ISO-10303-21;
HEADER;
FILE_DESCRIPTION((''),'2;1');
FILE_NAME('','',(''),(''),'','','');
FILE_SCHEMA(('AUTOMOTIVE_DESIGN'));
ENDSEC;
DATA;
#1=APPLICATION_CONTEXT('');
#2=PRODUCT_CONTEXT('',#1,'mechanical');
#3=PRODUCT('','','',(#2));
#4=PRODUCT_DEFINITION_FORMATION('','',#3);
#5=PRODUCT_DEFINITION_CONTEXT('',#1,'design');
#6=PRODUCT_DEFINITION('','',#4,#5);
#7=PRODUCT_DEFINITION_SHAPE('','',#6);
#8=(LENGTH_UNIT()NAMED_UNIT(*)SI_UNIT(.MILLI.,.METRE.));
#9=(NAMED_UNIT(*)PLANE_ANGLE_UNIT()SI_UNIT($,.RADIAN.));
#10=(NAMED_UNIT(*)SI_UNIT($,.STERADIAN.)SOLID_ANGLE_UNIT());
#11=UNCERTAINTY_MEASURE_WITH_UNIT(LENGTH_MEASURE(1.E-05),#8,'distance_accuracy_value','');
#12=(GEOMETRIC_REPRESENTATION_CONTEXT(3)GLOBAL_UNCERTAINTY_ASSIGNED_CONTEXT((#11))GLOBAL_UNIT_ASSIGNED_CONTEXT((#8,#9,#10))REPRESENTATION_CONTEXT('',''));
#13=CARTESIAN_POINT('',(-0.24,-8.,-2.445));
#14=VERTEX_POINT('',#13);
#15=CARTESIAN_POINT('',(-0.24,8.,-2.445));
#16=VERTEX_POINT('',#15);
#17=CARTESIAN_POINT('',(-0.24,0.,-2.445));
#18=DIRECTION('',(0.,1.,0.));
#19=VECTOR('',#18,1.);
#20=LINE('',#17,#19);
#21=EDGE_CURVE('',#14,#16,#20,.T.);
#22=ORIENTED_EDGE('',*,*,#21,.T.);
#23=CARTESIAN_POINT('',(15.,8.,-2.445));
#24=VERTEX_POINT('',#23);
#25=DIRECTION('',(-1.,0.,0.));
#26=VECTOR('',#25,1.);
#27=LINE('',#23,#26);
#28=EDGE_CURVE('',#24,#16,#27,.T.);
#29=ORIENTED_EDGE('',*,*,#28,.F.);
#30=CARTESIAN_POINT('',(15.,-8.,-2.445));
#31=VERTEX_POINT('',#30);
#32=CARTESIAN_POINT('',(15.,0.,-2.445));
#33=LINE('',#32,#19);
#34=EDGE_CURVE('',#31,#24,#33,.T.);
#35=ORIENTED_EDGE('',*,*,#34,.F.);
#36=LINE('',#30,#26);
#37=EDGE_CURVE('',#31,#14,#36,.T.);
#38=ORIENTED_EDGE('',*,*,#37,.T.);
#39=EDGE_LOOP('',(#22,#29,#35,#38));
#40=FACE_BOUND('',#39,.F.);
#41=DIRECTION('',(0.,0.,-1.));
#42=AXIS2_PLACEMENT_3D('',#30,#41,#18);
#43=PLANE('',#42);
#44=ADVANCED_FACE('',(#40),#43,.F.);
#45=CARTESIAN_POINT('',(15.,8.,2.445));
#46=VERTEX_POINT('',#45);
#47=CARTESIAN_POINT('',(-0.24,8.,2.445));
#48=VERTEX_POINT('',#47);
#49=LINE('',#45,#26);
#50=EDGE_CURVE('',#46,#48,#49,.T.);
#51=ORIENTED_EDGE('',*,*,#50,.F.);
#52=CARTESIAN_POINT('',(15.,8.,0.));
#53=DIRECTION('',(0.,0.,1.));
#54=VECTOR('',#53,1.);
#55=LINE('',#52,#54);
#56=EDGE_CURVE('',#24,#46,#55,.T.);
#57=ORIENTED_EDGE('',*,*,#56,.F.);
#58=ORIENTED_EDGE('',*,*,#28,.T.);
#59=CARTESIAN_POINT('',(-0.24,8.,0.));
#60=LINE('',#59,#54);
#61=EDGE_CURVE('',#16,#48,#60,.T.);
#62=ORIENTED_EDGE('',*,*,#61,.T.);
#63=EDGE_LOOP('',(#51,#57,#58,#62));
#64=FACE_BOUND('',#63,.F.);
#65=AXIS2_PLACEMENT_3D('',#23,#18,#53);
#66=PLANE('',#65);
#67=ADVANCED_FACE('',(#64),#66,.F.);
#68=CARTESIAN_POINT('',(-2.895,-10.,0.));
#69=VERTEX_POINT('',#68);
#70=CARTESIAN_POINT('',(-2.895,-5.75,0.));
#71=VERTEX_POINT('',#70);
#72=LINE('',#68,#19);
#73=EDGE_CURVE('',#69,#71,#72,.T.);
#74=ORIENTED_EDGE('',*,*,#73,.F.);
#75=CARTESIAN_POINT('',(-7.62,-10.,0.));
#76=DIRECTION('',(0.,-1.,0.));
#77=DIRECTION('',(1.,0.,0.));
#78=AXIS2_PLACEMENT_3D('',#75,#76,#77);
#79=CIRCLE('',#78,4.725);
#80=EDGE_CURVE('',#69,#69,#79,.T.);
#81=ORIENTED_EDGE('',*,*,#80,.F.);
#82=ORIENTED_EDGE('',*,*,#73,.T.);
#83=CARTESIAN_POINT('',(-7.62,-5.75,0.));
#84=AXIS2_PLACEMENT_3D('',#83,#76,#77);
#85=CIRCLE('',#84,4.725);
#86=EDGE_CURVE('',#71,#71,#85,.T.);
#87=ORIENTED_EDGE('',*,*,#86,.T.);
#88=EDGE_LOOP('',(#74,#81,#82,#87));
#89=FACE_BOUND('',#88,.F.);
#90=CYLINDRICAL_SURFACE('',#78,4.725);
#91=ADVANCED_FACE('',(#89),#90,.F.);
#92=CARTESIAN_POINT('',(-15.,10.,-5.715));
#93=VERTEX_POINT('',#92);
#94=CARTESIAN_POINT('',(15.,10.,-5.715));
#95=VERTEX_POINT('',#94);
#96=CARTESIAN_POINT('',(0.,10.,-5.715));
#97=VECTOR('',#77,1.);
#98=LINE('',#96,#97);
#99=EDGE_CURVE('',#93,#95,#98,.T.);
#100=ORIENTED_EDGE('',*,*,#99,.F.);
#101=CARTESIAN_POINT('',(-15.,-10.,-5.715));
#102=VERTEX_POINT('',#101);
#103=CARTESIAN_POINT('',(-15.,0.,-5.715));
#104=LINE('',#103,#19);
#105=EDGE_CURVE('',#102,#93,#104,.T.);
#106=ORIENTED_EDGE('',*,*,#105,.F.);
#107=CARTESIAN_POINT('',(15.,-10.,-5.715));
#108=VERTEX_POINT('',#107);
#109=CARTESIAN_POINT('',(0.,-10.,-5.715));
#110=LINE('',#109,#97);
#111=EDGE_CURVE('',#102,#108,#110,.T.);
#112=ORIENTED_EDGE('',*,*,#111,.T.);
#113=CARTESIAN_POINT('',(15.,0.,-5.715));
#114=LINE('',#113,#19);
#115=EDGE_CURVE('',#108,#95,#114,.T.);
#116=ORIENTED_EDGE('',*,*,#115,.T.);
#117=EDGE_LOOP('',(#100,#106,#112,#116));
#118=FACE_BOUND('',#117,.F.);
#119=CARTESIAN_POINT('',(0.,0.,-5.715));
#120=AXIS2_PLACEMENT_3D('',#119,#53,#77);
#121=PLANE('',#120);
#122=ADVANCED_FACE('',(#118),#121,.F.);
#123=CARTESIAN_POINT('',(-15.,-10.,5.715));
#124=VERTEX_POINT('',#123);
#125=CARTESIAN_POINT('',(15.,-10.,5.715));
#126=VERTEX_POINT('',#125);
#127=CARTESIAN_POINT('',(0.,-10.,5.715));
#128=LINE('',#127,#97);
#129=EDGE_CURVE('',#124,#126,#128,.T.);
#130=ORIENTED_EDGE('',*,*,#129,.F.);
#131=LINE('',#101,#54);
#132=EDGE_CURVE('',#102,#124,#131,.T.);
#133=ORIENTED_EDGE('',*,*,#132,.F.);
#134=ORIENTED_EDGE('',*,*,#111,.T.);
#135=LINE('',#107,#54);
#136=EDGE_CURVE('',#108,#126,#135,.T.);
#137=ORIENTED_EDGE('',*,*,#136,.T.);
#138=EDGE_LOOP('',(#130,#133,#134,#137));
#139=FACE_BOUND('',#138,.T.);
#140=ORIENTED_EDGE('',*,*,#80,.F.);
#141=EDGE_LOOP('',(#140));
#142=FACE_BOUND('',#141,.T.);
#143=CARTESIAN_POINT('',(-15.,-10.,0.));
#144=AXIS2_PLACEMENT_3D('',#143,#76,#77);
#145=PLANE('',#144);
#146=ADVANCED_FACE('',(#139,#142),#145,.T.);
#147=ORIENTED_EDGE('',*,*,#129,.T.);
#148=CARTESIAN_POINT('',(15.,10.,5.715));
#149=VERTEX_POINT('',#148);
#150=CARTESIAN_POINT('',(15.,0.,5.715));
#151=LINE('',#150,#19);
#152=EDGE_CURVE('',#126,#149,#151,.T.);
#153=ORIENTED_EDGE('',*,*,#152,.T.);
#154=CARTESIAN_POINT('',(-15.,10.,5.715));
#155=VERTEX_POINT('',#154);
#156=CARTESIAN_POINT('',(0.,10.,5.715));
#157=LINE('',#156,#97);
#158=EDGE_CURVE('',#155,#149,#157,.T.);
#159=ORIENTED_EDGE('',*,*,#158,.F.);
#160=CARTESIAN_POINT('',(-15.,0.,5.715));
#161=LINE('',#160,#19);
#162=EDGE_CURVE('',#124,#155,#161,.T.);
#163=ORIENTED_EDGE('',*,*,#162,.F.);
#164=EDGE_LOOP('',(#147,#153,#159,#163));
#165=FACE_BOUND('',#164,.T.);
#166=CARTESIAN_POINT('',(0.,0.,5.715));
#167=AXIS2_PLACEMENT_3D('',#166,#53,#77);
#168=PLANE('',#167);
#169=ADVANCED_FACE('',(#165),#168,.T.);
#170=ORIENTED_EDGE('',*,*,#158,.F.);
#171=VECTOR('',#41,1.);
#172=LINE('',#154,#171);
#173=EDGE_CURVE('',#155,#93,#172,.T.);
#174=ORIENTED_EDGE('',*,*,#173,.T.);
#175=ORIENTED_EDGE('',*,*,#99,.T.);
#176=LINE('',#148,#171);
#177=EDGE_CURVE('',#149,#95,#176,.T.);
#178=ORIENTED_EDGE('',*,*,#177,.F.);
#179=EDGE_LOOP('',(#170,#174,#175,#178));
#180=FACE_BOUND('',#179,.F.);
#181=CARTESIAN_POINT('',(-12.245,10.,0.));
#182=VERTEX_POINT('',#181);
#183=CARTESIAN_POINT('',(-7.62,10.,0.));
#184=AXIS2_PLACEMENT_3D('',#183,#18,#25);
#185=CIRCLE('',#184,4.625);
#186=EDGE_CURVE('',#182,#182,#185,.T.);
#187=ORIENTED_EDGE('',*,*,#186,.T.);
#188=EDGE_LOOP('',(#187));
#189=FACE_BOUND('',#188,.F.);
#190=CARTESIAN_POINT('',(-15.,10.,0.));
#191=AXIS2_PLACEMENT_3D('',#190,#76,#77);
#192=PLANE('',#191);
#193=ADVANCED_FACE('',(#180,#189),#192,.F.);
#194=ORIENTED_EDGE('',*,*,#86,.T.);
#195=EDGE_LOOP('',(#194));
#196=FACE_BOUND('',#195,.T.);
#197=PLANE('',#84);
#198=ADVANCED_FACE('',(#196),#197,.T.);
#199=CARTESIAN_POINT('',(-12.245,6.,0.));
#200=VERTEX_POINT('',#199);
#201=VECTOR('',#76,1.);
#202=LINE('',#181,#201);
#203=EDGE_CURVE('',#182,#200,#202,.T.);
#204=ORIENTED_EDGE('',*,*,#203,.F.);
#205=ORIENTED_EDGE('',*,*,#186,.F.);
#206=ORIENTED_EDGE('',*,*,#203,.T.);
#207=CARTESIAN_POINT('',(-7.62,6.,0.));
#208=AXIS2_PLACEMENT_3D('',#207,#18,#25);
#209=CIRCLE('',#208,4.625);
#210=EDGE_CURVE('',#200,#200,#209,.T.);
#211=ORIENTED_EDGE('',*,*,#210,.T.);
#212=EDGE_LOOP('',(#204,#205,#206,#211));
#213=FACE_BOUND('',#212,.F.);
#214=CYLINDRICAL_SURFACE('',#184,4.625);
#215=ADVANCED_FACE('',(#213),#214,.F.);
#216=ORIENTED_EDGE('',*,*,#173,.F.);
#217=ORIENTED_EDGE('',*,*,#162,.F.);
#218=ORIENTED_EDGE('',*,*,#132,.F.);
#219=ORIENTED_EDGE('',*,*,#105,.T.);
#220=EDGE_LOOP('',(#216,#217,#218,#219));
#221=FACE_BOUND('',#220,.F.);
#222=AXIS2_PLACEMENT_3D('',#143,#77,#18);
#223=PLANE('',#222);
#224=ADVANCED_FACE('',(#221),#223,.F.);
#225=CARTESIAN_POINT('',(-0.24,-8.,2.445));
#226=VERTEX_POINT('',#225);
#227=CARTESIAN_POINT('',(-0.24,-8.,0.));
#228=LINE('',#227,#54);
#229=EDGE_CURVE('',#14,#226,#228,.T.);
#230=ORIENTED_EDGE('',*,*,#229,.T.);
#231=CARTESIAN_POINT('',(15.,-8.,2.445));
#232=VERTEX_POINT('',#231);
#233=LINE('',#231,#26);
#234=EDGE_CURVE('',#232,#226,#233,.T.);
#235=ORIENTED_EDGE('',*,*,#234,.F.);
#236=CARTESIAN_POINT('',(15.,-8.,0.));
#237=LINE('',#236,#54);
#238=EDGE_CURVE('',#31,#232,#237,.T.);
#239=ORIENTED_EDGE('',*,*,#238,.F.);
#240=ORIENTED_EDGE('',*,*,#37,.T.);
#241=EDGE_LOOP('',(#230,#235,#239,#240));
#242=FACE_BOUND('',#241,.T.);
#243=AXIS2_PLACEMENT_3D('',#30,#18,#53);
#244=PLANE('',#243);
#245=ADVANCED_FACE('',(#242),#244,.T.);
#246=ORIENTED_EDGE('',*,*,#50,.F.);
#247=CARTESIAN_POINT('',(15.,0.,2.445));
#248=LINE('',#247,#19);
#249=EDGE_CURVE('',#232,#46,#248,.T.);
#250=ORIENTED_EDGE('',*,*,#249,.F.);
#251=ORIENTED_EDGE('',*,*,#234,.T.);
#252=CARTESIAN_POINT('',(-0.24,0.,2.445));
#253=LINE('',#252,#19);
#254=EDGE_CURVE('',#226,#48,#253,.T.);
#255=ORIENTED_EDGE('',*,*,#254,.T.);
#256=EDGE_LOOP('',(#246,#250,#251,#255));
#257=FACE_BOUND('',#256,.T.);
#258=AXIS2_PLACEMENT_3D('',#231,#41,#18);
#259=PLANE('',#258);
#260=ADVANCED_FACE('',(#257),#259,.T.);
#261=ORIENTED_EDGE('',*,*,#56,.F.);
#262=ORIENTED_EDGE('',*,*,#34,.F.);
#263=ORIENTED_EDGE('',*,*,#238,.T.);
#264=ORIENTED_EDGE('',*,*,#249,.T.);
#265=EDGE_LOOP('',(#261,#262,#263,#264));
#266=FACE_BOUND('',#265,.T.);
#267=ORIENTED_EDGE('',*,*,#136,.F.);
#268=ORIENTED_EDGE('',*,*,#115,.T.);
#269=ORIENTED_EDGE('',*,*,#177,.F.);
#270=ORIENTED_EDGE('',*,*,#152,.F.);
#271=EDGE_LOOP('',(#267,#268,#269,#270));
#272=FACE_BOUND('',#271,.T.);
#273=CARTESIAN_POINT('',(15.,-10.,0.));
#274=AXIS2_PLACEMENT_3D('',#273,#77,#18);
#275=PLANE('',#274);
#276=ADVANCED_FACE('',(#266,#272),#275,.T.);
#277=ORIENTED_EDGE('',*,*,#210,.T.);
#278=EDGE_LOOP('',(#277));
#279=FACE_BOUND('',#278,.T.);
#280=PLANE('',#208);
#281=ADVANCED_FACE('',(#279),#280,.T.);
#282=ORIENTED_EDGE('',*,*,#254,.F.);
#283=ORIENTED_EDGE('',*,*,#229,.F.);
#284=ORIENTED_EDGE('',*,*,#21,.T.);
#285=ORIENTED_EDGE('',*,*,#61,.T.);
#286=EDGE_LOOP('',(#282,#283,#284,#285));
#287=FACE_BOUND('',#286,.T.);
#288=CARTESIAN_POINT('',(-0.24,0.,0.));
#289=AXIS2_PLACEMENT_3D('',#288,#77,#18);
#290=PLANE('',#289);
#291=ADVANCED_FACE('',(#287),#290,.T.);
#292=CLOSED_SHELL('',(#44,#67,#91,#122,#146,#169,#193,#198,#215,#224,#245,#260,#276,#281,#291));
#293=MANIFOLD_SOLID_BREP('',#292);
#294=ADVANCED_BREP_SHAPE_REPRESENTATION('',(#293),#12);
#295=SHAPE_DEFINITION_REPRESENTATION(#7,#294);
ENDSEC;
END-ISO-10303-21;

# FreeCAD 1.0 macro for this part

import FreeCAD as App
import Part
import Sketcher


def add_polygon(sketch, points):
    """Adds a closed chain of lines whose ends are joined by coincident constraints."""
    first, n = sketch.GeometryCount, len(points)
    for a, b in zip(points, points[1:] + points[:1]):
        sketch.addGeometry(Part.LineSegment(App.Vector(*a, 0), App.Vector(*b, 0)), False)
    for i in range(n):
        sketch.addConstraint(Sketcher.Constraint("Coincident", first + i, 2, first + (i + 1) % n, 1))

doc = App.newDocument("Part")
body = doc.addObject("PartDesign::Body", "Body")

sketch1 = body.newObject("Sketcher::SketchObject", "Sketch")
sketch1.AttachmentSupport = (doc.getObject("XY_Plane"), [""])
sketch1.MapMode = "FlatFace"
add_polygon(sketch1, [(-15, 10), (-15, -10), (15, -10), (15, 10)])
sketch1.addConstraint([
    Sketcher.Constraint("Vertical", 0),
    Sketcher.Constraint("Horizontal", 1),
    Sketcher.Constraint("Vertical", 2),
    Sketcher.Constraint("Horizontal", 3),
    Sketcher.Constraint("Symmetric", 0, 2, 2, 2, -1, 1),
    Sketcher.Constraint("DistanceX", 1, 1, 1, 2, 30.0),
    Sketcher.Constraint("DistanceY", 0, 2, 0, 1, 20.0),
])
pad1 = body.newObject("PartDesign::Pad", "Pad")
pad1.Profile = sketch1
pad1.Length = 11.43
pad1.Midplane = True

sketch2 = body.newObject("Sketcher::SketchObject", "Sketch001")
sketch2.AttachmentSupport = (doc.getObject("YZ_Plane"), [""])
sketch2.MapMode = "FlatFace"
sketch2.AttachmentOffset = App.Placement(App.Vector(0, 0, 15), App.Rotation())
add_polygon(sketch2, [(-8, 2.4), (-8, -2.4), (8, -2.4), (8, 2.4)])
sketch2.addConstraint([
    Sketcher.Constraint("Vertical", 0),
    Sketcher.Constraint("Horizontal", 1),
    Sketcher.Constraint("Vertical", 2),
    Sketcher.Constraint("Horizontal", 3),
    Sketcher.Constraint("Symmetric", 0, 2, 2, 2, -1, 1),
    Sketcher.Constraint("DistanceX", 1, 1, 1, 2, 16.0),
    Sketcher.Constraint("DistanceY", 0, 2, 0, 1, 4.89),
])
pocket1 = body.newObject("PartDesign::Pocket", "Pocket")
pocket1.Profile = sketch2
pocket1.Length = 15.24

sketch3 = body.newObject("Sketcher::SketchObject", "Sketch002")
sketch3.AttachmentSupport = (doc.getObject("XZ_Plane"), [""])
sketch3.MapMode = "FlatFace"
sketch3.AttachmentOffset = App.Placement(App.Vector(0, 0, -10), App.Rotation())
sketch3.addGeometry(Part.Circle(App.Vector(-7.6, 0, 0), App.Vector(0, 0, 1), 4.6), False)
sketch3.addConstraint([
    Sketcher.Constraint("PointOnObject", 0, 3, -1),
    Sketcher.Constraint("Diameter", 0, 9.25),
    Sketcher.Constraint("DistanceX", 0, 3, -1, 1, 7.62),
])
pocket2 = body.newObject("PartDesign::Pocket", "Pocket001")
pocket2.Profile = sketch3
pocket2.Length = 4
pocket2.Reversed = True

sketch4 = body.newObject("Sketcher::SketchObject", "Sketch003")
sketch4.AttachmentSupport = (doc.getObject("XZ_Plane"), [""])
sketch4.MapMode = "FlatFace"
sketch4.AttachmentOffset = App.Placement(App.Vector(0, 0, 10), App.Rotation())
sketch4.addGeometry(Part.Circle(App.Vector(-7.6, 0, 0), App.Vector(0, 0, 1), 4.7), False)
sketch4.addConstraint([
    Sketcher.Constraint("PointOnObject", 0, 3, -1),
    Sketcher.Constraint("Diameter", 0, 9.45),
    Sketcher.Constraint("DistanceX", 0, 3, -1, 1, 7.62),
])
pocket3 = body.newObject("PartDesign::Pocket", "Pocket002")
pocket3.Profile = sketch4
pocket3.Length = 4.25

doc.recompute()
